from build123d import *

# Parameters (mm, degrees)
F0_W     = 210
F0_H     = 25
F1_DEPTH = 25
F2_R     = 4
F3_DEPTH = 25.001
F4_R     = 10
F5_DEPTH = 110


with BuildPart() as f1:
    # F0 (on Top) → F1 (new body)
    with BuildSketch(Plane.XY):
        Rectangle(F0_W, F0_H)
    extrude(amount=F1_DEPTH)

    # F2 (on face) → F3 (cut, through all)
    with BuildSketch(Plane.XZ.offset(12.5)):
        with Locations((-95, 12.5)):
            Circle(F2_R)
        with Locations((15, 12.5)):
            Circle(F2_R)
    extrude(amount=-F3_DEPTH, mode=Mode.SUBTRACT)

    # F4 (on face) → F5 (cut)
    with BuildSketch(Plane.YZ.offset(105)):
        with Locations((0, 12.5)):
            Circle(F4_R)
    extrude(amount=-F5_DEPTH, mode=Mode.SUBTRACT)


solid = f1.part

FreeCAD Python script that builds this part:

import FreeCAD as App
import Part
import Sketcher
from FreeCAD import Vector
Q = App.Units.Quantity

doc = App.newDocument("Part")
body = doc.addObject("PartDesign::Body", "Body")

sketch1 = body.newObject("Sketcher::SketchObject", "Sketch")
sketch1.AttachmentSupport = (doc.getObject("XY_Plane"), [""])
sketch1.MapMode = "FlatFace"
sketch1.addGeometry(Part.LineSegment(Vector(-105, 12, 0), Vector(-105, -12, 0)), False)
sketch1.addGeometry(Part.LineSegment(Vector(-105, -12, 0), Vector(105, -12, 0)), False)
sketch1.addGeometry(Part.LineSegment(Vector(105, -12, 0), Vector(105, 12, 0)), False)
sketch1.addGeometry(Part.LineSegment(Vector(105, 12, 0), Vector(-105, 12, 0)), False)
sketch1.addConstraint(Sketcher.Constraint("Coincident", 0, 2, 1, 1))
sketch1.addConstraint(Sketcher.Constraint("Coincident", 1, 2, 2, 1))
sketch1.addConstraint(Sketcher.Constraint("Coincident", 2, 2, 3, 1))
sketch1.addConstraint(Sketcher.Constraint("Coincident", 3, 2, 0, 1))
sketch1.addConstraint(Sketcher.Constraint("Vertical", 0))
sketch1.addConstraint(Sketcher.Constraint("Horizontal", 1))
sketch1.addConstraint(Sketcher.Constraint("Vertical", 2))
sketch1.addConstraint(Sketcher.Constraint("Horizontal", 3))
sketch1.addConstraint(Sketcher.Constraint("Symmetric", 0, 2, 2, 2, -1, 1))
sketch1.addConstraint(Sketcher.Constraint("DistanceX", 1, 1, 1, 2, Q("210 mm")))
sketch1.addConstraint(Sketcher.Constraint("DistanceY", 0, 2, 0, 1, Q("25 mm")))
pad1 = body.newObject("PartDesign::Pad", "Pad")
pad1.Profile = sketch1
pad1.Length = 25

sketch2 = body.newObject("Sketcher::SketchObject", "Sketch001")
sketch2.AttachmentSupport = (doc.getObject("XZ_Plane"), [""])
sketch2.MapMode = "FlatFace"
sketch2.AttachmentOffset = App.Placement(Vector(0, 0, 12.5), App.Rotation())
sketch2.addGeometry(Part.Circle(Vector(-95, 12.5, 0), Vector(0, 0, 1), 4), False)
sketch2.addGeometry(Part.Circle(Vector(15, 12.5, 0), Vector(0, 0, 1), 4), False)
sketch2.addConstraint(Sketcher.Constraint("Equal", 0, 1))
sketch2.addConstraint(Sketcher.Constraint("Horizontal", 0, 3, 1, 3))
sketch2.addConstraint(Sketcher.Constraint("Diameter", 0, Q("8 mm")))
sketch2.addConstraint(Sketcher.Constraint("DistanceX", 0, 3, -1, 1, Q("95 mm")))
sketch2.addConstraint(Sketcher.Constraint("DistanceX", -1, 1, 1, 3, Q("15 mm")))
sketch2.addConstraint(Sketcher.Constraint("DistanceY", -1, 1, 0, 3, Q("12.5 mm")))
pocket1 = body.newObject("PartDesign::Pocket", "Pocket")
pocket1.Profile = sketch2
pocket1.Type = "ThroughAll"

sketch3 = body.newObject("Sketcher::SketchObject", "Sketch002")
sketch3.AttachmentSupport = (doc.getObject("YZ_Plane"), [""])
sketch3.MapMode = "FlatFace"
sketch3.AttachmentOffset = App.Placement(Vector(0, 0, 105), App.Rotation())
sketch3.addGeometry(Part.Circle(Vector(0, 12, 0), Vector(0, 0, 1), 10), False)
sketch3.addConstraint(Sketcher.Constraint("PointOnObject", 0, 3, -2))
sketch3.addConstraint(Sketcher.Constraint("Diameter", 0, Q("20 mm")))
sketch3.addConstraint(Sketcher.Constraint("DistanceY", -1, 1, 0, 3, Q("12.5 mm")))
pocket2 = body.newObject("PartDesign::Pocket", "Pocket001")
pocket2.Profile = sketch3
pocket2.Length = 110

doc.recompute()
